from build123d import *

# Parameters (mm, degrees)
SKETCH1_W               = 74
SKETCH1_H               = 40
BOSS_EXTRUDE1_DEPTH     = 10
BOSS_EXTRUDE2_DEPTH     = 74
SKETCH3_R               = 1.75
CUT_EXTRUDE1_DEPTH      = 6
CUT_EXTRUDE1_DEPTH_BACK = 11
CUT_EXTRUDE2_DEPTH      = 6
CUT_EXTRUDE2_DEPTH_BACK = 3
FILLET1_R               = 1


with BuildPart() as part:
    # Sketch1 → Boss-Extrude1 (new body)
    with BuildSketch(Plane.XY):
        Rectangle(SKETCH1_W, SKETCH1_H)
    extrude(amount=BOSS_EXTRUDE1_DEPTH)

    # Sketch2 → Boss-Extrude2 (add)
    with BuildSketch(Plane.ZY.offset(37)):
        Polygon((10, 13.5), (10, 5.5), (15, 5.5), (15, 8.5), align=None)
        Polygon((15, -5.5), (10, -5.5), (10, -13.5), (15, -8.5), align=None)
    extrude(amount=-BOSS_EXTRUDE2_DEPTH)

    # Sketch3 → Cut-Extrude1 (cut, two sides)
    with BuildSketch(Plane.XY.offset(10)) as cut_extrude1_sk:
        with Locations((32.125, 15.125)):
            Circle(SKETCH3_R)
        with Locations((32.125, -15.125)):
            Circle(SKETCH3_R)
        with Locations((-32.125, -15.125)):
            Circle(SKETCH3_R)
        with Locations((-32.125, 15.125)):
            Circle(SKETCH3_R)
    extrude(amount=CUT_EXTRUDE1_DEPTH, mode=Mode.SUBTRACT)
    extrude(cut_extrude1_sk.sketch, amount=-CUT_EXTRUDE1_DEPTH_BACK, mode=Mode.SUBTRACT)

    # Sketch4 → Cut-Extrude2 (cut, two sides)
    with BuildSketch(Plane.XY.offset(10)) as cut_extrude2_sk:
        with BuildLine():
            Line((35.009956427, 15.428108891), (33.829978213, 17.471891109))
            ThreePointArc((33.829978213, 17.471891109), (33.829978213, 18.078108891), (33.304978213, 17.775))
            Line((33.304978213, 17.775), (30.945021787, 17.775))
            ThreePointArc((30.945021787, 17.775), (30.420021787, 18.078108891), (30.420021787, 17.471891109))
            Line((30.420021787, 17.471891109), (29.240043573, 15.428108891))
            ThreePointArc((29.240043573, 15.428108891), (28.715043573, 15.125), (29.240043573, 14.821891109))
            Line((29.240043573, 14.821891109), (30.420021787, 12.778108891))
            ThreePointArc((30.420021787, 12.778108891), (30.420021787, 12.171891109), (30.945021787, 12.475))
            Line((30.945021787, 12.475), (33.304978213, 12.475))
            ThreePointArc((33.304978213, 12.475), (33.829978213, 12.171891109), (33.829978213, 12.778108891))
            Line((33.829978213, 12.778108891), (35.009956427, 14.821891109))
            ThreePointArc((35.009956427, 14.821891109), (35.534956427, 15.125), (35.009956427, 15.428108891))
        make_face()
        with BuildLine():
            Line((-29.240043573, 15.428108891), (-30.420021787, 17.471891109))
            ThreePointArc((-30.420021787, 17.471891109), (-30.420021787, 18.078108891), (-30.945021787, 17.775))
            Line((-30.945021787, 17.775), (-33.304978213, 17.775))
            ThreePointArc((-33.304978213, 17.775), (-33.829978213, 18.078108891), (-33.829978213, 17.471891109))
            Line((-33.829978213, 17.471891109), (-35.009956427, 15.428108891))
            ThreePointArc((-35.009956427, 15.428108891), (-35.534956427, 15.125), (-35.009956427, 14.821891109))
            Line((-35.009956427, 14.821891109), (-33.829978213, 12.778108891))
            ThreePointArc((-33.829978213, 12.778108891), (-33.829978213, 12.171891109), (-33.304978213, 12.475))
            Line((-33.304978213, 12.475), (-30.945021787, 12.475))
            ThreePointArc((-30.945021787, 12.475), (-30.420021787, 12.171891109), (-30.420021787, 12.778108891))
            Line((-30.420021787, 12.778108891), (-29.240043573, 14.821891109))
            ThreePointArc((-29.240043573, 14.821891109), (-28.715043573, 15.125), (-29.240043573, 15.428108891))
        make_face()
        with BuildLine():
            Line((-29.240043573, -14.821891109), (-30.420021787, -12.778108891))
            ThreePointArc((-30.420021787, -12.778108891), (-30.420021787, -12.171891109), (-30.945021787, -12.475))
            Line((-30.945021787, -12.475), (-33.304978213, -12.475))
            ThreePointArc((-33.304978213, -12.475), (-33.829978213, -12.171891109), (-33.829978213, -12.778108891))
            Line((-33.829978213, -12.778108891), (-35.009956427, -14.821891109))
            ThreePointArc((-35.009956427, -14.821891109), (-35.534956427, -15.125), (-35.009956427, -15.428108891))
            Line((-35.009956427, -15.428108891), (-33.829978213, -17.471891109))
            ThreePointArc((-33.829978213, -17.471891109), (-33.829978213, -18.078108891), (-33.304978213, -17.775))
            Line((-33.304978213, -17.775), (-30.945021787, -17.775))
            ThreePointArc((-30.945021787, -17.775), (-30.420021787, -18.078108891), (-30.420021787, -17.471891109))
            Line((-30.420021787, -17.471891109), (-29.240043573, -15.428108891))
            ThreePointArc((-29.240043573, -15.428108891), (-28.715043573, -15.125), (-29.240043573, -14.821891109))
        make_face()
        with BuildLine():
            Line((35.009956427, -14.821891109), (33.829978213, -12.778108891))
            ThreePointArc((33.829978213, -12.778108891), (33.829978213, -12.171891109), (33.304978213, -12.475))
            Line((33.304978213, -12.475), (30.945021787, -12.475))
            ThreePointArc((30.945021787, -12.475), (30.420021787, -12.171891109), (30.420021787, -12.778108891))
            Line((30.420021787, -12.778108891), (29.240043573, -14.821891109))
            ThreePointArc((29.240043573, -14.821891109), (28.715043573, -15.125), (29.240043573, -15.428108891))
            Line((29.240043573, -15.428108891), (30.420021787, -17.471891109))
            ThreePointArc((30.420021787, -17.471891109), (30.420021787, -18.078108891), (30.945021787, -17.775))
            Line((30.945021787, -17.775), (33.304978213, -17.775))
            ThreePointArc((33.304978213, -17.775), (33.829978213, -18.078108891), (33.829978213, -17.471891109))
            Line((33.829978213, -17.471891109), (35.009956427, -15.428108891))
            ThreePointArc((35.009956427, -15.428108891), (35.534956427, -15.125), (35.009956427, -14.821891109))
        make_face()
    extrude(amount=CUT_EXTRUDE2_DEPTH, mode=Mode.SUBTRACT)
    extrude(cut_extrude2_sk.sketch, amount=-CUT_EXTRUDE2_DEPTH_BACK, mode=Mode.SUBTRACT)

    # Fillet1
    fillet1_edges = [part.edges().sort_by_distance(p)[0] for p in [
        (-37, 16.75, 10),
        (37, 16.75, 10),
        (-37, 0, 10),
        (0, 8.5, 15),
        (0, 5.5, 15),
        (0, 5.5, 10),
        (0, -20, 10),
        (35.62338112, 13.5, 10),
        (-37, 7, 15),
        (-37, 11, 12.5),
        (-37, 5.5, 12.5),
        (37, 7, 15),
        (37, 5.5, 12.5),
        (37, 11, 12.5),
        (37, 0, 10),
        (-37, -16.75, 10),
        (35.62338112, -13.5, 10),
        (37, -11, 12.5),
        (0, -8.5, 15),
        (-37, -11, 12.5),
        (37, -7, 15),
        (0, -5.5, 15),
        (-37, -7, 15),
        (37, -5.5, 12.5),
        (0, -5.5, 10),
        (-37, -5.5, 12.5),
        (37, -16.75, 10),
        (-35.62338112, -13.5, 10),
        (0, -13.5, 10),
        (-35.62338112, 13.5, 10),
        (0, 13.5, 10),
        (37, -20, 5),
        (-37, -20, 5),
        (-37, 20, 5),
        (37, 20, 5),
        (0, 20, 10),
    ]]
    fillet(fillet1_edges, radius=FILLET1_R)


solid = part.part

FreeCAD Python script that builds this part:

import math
import FreeCAD as App
import Part
import Sketcher

V = App.Vector
Q = App.Units.Quantity


def edges_at(feature, points):
    """Names of the edges that pass closest to the given points."""
    edges = feature.Shape.Edges
    near = lambda p: min(range(len(edges)), key=lambda i: edges[i].distToShape(Part.Vertex(*p))[0])
    return sorted({f"Edge{near(p) + 1}" for p in points})


def add_polygon(sketch, points):
    """Adds a closed chain of lines whose ends are joined by coincident constraints."""
    first, n = sketch.GeometryCount, len(points)
    for a, b in zip(points, points[1:] + points[:1]):
        sketch.addGeometry(Part.LineSegment(App.Vector(*a, 0), App.Vector(*b, 0)), False)
    for i in range(n):
        sketch.addConstraint(Sketcher.Constraint("Coincident", first + i, 2, first + (i + 1) % n, 1))

doc = App.newDocument("Part")
body = doc.addObject("PartDesign::Body", "Body")

# Sketch on XY plane
sketch1 = body.newObject("Sketcher::SketchObject", "Sketch")
sketch1.AttachmentSupport = (doc.getObject("XY_Plane"), [""])
sketch1.MapMode = "FlatFace"
add_polygon(sketch1, [(-37, 20), (-37, -20), (37, -20), (37, 20)])  # lines 0-3
sketch1.addConstraint([
    Sketcher.Constraint("Vertical", 0),
    Sketcher.Constraint("Horizontal", 1),
    Sketcher.Constraint("Vertical", 2),
    Sketcher.Constraint("Horizontal", 3),
    Sketcher.Constraint("Symmetric", 0, 2, 2, 2, -1, 1),
    Sketcher.Constraint("DistanceX", 1, 1, 1, 2, 74.0),
    Sketcher.Constraint("DistanceY", 0, 2, 0, 1, 40.0),
])
pad1 = body.newObject("PartDesign::Pad", "Pad")
pad1.Profile = sketch1
pad1.Length = 10

# Sketch on YZ plane
sketch2 = body.newObject("Sketcher::SketchObject", "Sketch001")
sketch2.AttachmentSupport = (doc.getObject("YZ_Plane"), [""])
sketch2.MapMode = "FlatFace"
sketch2.AttachmentOffset = App.Placement(V(0, 0, -37), App.Rotation())
add_polygon(sketch2, [(13.5, 10), (5.5, 10), (5.5, 15), (8.5, 15)])  # lines 0-3
add_polygon(sketch2, [(-5.5, 15), (-5.5, 10), (-13.5, 10), (-8.5, 15)])  # lines 4-7
sketch2.addConstraint([
    Sketcher.Constraint("Horizontal", 0),
    Sketcher.Constraint("Vertical", 1),
    Sketcher.Constraint("Horizontal", 2),
    Sketcher.Constraint("Vertical", 4),
    Sketcher.Constraint("Horizontal", 5),
    Sketcher.Constraint("Horizontal", 7),
    Sketcher.Constraint("Symmetric", 0, 2, 4, 2, -2),
    Sketcher.Constraint("Symmetric", 2, 2, 6, 2, -2),
    Sketcher.Constraint("Perpendicular", 3, 6),
    Sketcher.Constraint("Equal", 0, 5),
    Sketcher.Constraint("DistanceX", 0, 2, 0, 1, 8.0),
    Sketcher.Constraint("DistanceX", 2, 1, 2, 2, 3.0),
    Sketcher.Constraint("DistanceY", -1, 1, 0, 2, 10.0),
    Sketcher.Constraint("DistanceX", 4, 2, 0, 2, 11.0),
])
pad2 = body.newObject("PartDesign::Pad", "Pad001")
pad2.Profile = sketch2
pad2.Length = 74

# Sketch on XY plane
sketch3 = body.newObject("Sketcher::SketchObject", "Sketch002")
sketch3.AttachmentSupport = (doc.getObject("XY_Plane"), [""])
sketch3.MapMode = "FlatFace"
sketch3.AttachmentOffset = App.Placement(V(0, 0, 10), App.Rotation())
sketch3.addGeometry([
    Part.Circle(V(32.1, 15.1, 0), V(0, 0, 1), 1.8),
    Part.Circle(V(32.1, -15.1, 0), V(0, 0, 1), 1.8),
    Part.Circle(V(-32.1, -15.1, 0), V(0, 0, 1), 1.8),
    Part.Circle(V(-32.1, 15.1, 0), V(0, 0, 1), 1.8),
], False)
sketch3.addConstraint([
    Sketcher.Constraint("Equal", 0, 1),
    Sketcher.Constraint("Equal", 1, 2),
    Sketcher.Constraint("Equal", 2, 3),
    Sketcher.Constraint("Symmetric", 0, 3, 2, 3, -1, 1),
    Sketcher.Constraint("Symmetric", 1, 3, 3, 3, -1, 1),
    Sketcher.Constraint("Symmetric", 1, 3, 2, 3, -2),
    Sketcher.Constraint("Diameter", 0, 3.5),
    Sketcher.Constraint("DistanceY", 1, 3, 0, 3, 30.25),
    Sketcher.Constraint("DistanceX", 2, 3, 1, 3, 64.25),
])
pocket1 = body.newObject("PartDesign::Pocket", "Pocket")
pocket1.Profile = sketch3
pocket1.Type = "ThroughAll"
pocket1.Midplane = True

# Sketch on XY plane
sketch4 = body.newObject("Sketcher::SketchObject", "Sketch003")
sketch4.AttachmentSupport = (doc.getObject("XY_Plane"), [""])
sketch4.MapMode = "FlatFace"
sketch4.AttachmentOffset = App.Placement(V(0, 0, 10), App.Rotation())
sketch4.addGeometry([
    Part.LineSegment(V(35.01, 15.43, 0), V(33.83, 17.47, 0)),  # 0
    Part.ArcOfCircle(Part.Circle(V(33.65, 17.77, 0), V(0, 0, 1), 0.35), math.radians(-60), math.radians(180)),  # 1
    Part.LineSegment(V(33.3, 17.77, 0), V(30.95, 17.77, 0)),  # 2
    Part.ArcOfCircle(Part.Circle(V(30.6, 17.77, 0), V(0, 0, 1), 0.35), math.radians(0), math.radians(240)),  # 3
    Part.LineSegment(V(30.42, 17.47, 0), V(29.24, 15.43, 0)),  # 4
    Part.ArcOfCircle(Part.Circle(V(29.07, 15.12, 0), V(0, 0, 1), 0.35), math.radians(60), math.radians(300)),  # 5
    Part.LineSegment(V(29.24, 14.82, 0), V(30.42, 12.78, 0)),  # 6
    Part.ArcOfCircle(Part.Circle(V(30.6, 12.47, 0), V(0, 0, 1), 0.35), math.radians(120), math.radians(360)),  # 7
    Part.LineSegment(V(30.95, 12.47, 0), V(33.3, 12.47, 0)),  # 8
    Part.ArcOfCircle(Part.Circle(V(33.65, 12.47, 0), V(0, 0, 1), 0.35), math.radians(180), math.radians(420)),  # 9
    Part.LineSegment(V(33.83, 12.78, 0), V(35.01, 14.82, 0)),  # 10
    Part.ArcOfCircle(Part.Circle(V(35.18, 15.12, 0), V(0, 0, 1), 0.35), math.radians(-120), math.radians(120)),  # 11
    Part.LineSegment(V(-29.24, 15.43, 0), V(-30.42, 17.47, 0)),  # 12
    Part.ArcOfCircle(Part.Circle(V(-30.6, 17.77, 0), V(0, 0, 1), 0.35), math.radians(-60), math.radians(180)),  # 13
    Part.LineSegment(V(-30.95, 17.77, 0), V(-33.3, 17.77, 0)),  # 14
    Part.ArcOfCircle(Part.Circle(V(-33.65, 17.77, 0), V(0, 0, 1), 0.35), math.radians(0), math.radians(240)),  # 15
    Part.LineSegment(V(-33.83, 17.47, 0), V(-35.01, 15.43, 0)),  # 16
    Part.ArcOfCircle(Part.Circle(V(-35.18, 15.12, 0), V(0, 0, 1), 0.35), math.radians(60), math.radians(300)),  # 17
    Part.LineSegment(V(-35.01, 14.82, 0), V(-33.83, 12.78, 0)),  # 18
    Part.ArcOfCircle(Part.Circle(V(-33.65, 12.47, 0), V(0, 0, 1), 0.35), math.radians(120), math.radians(360)),  # 19
    Part.LineSegment(V(-33.3, 12.47, 0), V(-30.95, 12.47, 0)),  # 20
    Part.ArcOfCircle(Part.Circle(V(-30.6, 12.47, 0), V(0, 0, 1), 0.35), math.radians(180), math.radians(420)),  # 21
    Part.LineSegment(V(-30.42, 12.78, 0), V(-29.24, 14.82, 0)),  # 22
    Part.ArcOfCircle(Part.Circle(V(-29.07, 15.12, 0), V(0, 0, 1), 0.35), math.radians(-120), math.radians(120)),  # 23
    Part.LineSegment(V(-29.24, -14.82, 0), V(-30.42, -12.78, 0)),  # 24
    Part.ArcOfCircle(Part.Circle(V(-30.6, -12.47, 0), V(0, 0, 1), 0.35), math.radians(-60), math.radians(180)),  # 25
    Part.LineSegment(V(-30.95, -12.47, 0), V(-33.3, -12.47, 0)),  # 26
    Part.ArcOfCircle(Part.Circle(V(-33.65, -12.47, 0), V(0, 0, 1), 0.35), math.radians(0), math.radians(240)),  # 27
    Part.LineSegment(V(-33.83, -12.78, 0), V(-35.01, -14.82, 0)),  # 28
    Part.ArcOfCircle(Part.Circle(V(-35.18, -15.12, 0), V(0, 0, 1), 0.35), math.radians(60), math.radians(300)),  # 29
    Part.LineSegment(V(-35.01, -15.43, 0), V(-33.83, -17.47, 0)),  # 30
    Part.ArcOfCircle(Part.Circle(V(-33.65, -17.77, 0), V(0, 0, 1), 0.35), math.radians(120), math.radians(360)),  # 31
    Part.LineSegment(V(-33.3, -17.77, 0), V(-30.95, -17.77, 0)),  # 32
    Part.ArcOfCircle(Part.Circle(V(-30.6, -17.77, 0), V(0, 0, 1), 0.35), math.radians(180), math.radians(420)),  # 33
    Part.LineSegment(V(-30.42, -17.47, 0), V(-29.24, -15.43, 0)),  # 34
    Part.ArcOfCircle(Part.Circle(V(-29.07, -15.12, 0), V(0, 0, 1), 0.35), math.radians(-120), math.radians(120)),  # 35
    Part.LineSegment(V(35.01, -14.82, 0), V(33.83, -12.78, 0)),  # 36
    Part.ArcOfCircle(Part.Circle(V(33.65, -12.47, 0), V(0, 0, 1), 0.35), math.radians(-60), math.radians(180)),  # 37
    Part.LineSegment(V(33.3, -12.47, 0), V(30.95, -12.47, 0)),  # 38
    Part.ArcOfCircle(Part.Circle(V(30.6, -12.47, 0), V(0, 0, 1), 0.35), math.radians(0), math.radians(240)),  # 39
    Part.LineSegment(V(30.42, -12.78, 0), V(29.24, -14.82, 0)),  # 40
    Part.ArcOfCircle(Part.Circle(V(29.07, -15.12, 0), V(0, 0, 1), 0.35), math.radians(60), math.radians(300)),  # 41
    Part.LineSegment(V(29.24, -15.43, 0), V(30.42, -17.47, 0)),  # 42
    Part.ArcOfCircle(Part.Circle(V(30.6, -17.77, 0), V(0, 0, 1), 0.35), math.radians(120), math.radians(360)),  # 43
    Part.LineSegment(V(30.95, -17.77, 0), V(33.3, -17.77, 0)),  # 44
    Part.ArcOfCircle(Part.Circle(V(33.65, -17.77, 0), V(0, 0, 1), 0.35), math.radians(180), math.radians(420)),  # 45
    Part.LineSegment(V(33.83, -17.47, 0), V(35.01, -15.43, 0)),  # 46
    Part.ArcOfCircle(Part.Circle(V(35.18, -15.12, 0), V(0, 0, 1), 0.35), math.radians(-120), math.radians(120)),  # 47
], False)
sketch4.addConstraint([
    Sketcher.Constraint("Coincident", 0, 2, 1, 1),
    Sketcher.Constraint("Coincident", 1, 2, 2, 1),
    Sketcher.Constraint("Coincident", 2, 2, 3, 1),
    Sketcher.Constraint("Coincident", 3, 2, 4, 1),
    Sketcher.Constraint("Coincident", 4, 2, 5, 1),
    Sketcher.Constraint("Coincident", 5, 2, 6, 1),
    Sketcher.Constraint("Coincident", 6, 2, 7, 1),
    Sketcher.Constraint("Coincident", 7, 2, 8, 1),
    Sketcher.Constraint("Coincident", 8, 2, 9, 1),
    Sketcher.Constraint("Coincident", 9, 2, 10, 1),
    Sketcher.Constraint("Coincident", 10, 2, 11, 1),
    Sketcher.Constraint("Coincident", 11, 2, 0, 1),
    Sketcher.Constraint("Coincident", 12, 2, 13, 1),
    Sketcher.Constraint("Coincident", 13, 2, 14, 1),
    Sketcher.Constraint("Coincident", 14, 2, 15, 1),
    Sketcher.Constraint("Coincident", 15, 2, 16, 1),
    Sketcher.Constraint("Coincident", 16, 2, 17, 1),
    Sketcher.Constraint("Coincident", 17, 2, 18, 1),
    Sketcher.Constraint("Coincident", 18, 2, 19, 1),
    Sketcher.Constraint("Coincident", 19, 2, 20, 1),
    Sketcher.Constraint("Coincident", 20, 2, 21, 1),
    Sketcher.Constraint("Coincident", 21, 2, 22, 1),
    Sketcher.Constraint("Coincident", 22, 2, 23, 1),
    Sketcher.Constraint("Coincident", 23, 2, 12, 1),
    Sketcher.Constraint("Coincident", 24, 2, 25, 1),
    Sketcher.Constraint("Coincident", 25, 2, 26, 1),
    Sketcher.Constraint("Coincident", 26, 2, 27, 1),
    Sketcher.Constraint("Coincident", 27, 2, 28, 1),
    Sketcher.Constraint("Coincident", 28, 2, 29, 1),
    Sketcher.Constraint("Coincident", 29, 2, 30, 1),
    Sketcher.Constraint("Coincident", 30, 2, 31, 1),
    Sketcher.Constraint("Coincident", 31, 2, 32, 1),
    Sketcher.Constraint("Coincident", 32, 2, 33, 1),
    Sketcher.Constraint("Coincident", 33, 2, 34, 1),
    Sketcher.Constraint("Coincident", 34, 2, 35, 1),
    Sketcher.Constraint("Coincident", 35, 2, 24, 1),
    Sketcher.Constraint("Coincident", 36, 2, 37, 1),
    Sketcher.Constraint("Coincident", 37, 2, 38, 1),
    Sketcher.Constraint("Coincident", 38, 2, 39, 1),
    Sketcher.Constraint("Coincident", 39, 2, 40, 1),
    Sketcher.Constraint("Coincident", 40, 2, 41, 1),
    Sketcher.Constraint("Coincident", 41, 2, 42, 1),
    Sketcher.Constraint("Coincident", 42, 2, 43, 1),
    Sketcher.Constraint("Coincident", 43, 2, 44, 1),
    Sketcher.Constraint("Coincident", 44, 2, 45, 1),
    Sketcher.Constraint("Coincident", 45, 2, 46, 1),
    Sketcher.Constraint("Coincident", 46, 2, 47, 1),
    Sketcher.Constraint("Coincident", 47, 2, 36, 1),
    Sketcher.Constraint("Horizontal", 2),
    Sketcher.Constraint("Horizontal", 8),
    Sketcher.Constraint("Horizontal", 14),
    Sketcher.Constraint("Horizontal", 20),
    Sketcher.Constraint("Horizontal", 26),
    Sketcher.Constraint("Horizontal", 32),
    Sketcher.Constraint("Horizontal", 38),
    Sketcher.Constraint("Horizontal", 44),
    Sketcher.Constraint("Equal", 1, 3),
    Sketcher.Constraint("Equal", 3, 5),
    Sketcher.Constraint("Equal", 5, 7),
    Sketcher.Constraint("Equal", 7, 9),
    Sketcher.Constraint("Equal", 9, 11),
    Sketcher.Constraint("Equal", 11, 13),
    Sketcher.Constraint("Equal", 13, 15),
    Sketcher.Constraint("Equal", 15, 17),
    Sketcher.Constraint("Equal", 17, 19),
    Sketcher.Constraint("Equal", 19, 21),
    Sketcher.Constraint("Equal", 21, 23),
    Sketcher.Constraint("Equal", 23, 25),
    Sketcher.Constraint("Equal", 25, 27),
    Sketcher.Constraint("Equal", 27, 29),
    Sketcher.Constraint("Equal", 29, 31),
    Sketcher.Constraint("Equal", 31, 33),
    Sketcher.Constraint("Equal", 33, 35),
    Sketcher.Constraint("Equal", 35, 37),
    Sketcher.Constraint("Equal", 37, 39),
    Sketcher.Constraint("Equal", 39, 41),
    Sketcher.Constraint("Equal", 41, 43),
    Sketcher.Constraint("Equal", 43, 45),
    Sketcher.Constraint("Equal", 45, 47),
    Sketcher.Constraint("Symmetric", 7, 3, 25, 3, -1, 1),
    Sketcher.Constraint("Symmetric", 9, 3, 27, 3, -1, 1),
    Sketcher.Constraint("Symmetric", 11, 3, 29, 3, -1, 1),
    Sketcher.Constraint("Symmetric", 1, 3, 31, 3, -1, 1),
    Sketcher.Constraint("Symmetric", 3, 3, 33, 3, -1, 1),
    Sketcher.Constraint("Symmetric", 5, 3, 35, 3, -1, 1),
    Sketcher.Constraint("Symmetric", 19, 3, 37, 3, -1, 1),
    Sketcher.Constraint("Symmetric", 21, 3, 39, 3, -1, 1),
    Sketcher.Constraint("Symmetric", 23, 3, 41, 3, -1, 1),
    Sketcher.Constraint("Symmetric", 13, 3, 43, 3, -1, 1),
    Sketcher.Constraint("Symmetric", 15, 3, 45, 3, -1, 1),
    Sketcher.Constraint("Symmetric", 17, 3, 47, 3, -1, 1),
    Sketcher.Constraint("Symmetric", 3, 3, 13, 3, -2),
    Sketcher.Constraint("Symmetric", 1, 3, 15, 3, -2),
    Sketcher.Constraint("Symmetric", 11, 3, 17, 3, -2),
    Sketcher.Constraint("Symmetric", 9, 3, 19, 3, -2),
    Sketcher.Constraint("Symmetric", 7, 3, 21, 3, -2),
    Sketcher.Constraint("Symmetric", 5, 3, 23, 3, -2),
    Sketcher.Constraint("Parallel", 0, 6),
    Sketcher.Constraint("Parallel", 4, 10),
    Sketcher.Constraint("Parallel", 6, 12),
    Sketcher.Constraint("Parallel", 10, 16),
    Sketcher.Constraint("Parallel", 12, 18),
    Sketcher.Constraint("Parallel", 16, 22),
    Sketcher.Constraint("Parallel", 18, 24),
    Sketcher.Constraint("Parallel", 22, 28),
    Sketcher.Constraint("Parallel", 24, 30),
    Sketcher.Constraint("Parallel", 28, 34),
    Sketcher.Constraint("Parallel", 30, 36),
    Sketcher.Constraint("Parallel", 34, 40),
    Sketcher.Constraint("Parallel", 36, 42),
    Sketcher.Constraint("Parallel", 40, 46),
    Sketcher.Constraint("Horizontal", 1, 3, 3, 3),
    Sketcher.Constraint("Horizontal", 7, 3, 9, 3),
    Sketcher.Constraint("Horizontal", 5, 3, 11, 3),
    Sketcher.Constraint("Horizontal", 15, 3, 1, 2),
    Sketcher.Constraint("Horizontal", 0, 2, 3, 2),
    Sketcher.Constraint("Horizontal", 21, 3, 7, 2),
    Sketcher.Constraint("Horizontal", 6, 2, 9, 2),
    Sketcher.Constraint("Horizontal", 5, 2, 10, 2),
    Sketcher.Constraint("Horizontal", 4, 2, 11, 2),
    Sketcher.Constraint("Horizontal", 3, 2, 12, 2),
    Sketcher.Constraint("Horizontal", 2, 2, 13, 2),
    Sketcher.Constraint("Horizontal", 12, 2, 15, 2),
    Sketcher.Constraint("Horizontal", 11, 2, 16, 2),
    Sketcher.Constraint("Horizontal", 10, 2, 17, 2),
    Sketcher.Constraint("Horizontal", 8, 2, 19, 2),
    Sketcher.Constraint("Horizontal", 18, 2, 21, 2),
    Sketcher.Constraint("Horizontal", 39, 3, 25, 2),
    Sketcher.Constraint("Horizontal", 24, 2, 27, 2),
    Sketcher.Constraint("Horizontal", 45, 3, 31, 2),
    Sketcher.Constraint("Horizontal", 30, 2, 33, 2),
    Sketcher.Constraint("Horizontal", 27, 2, 36, 2),
    Sketcher.Constraint("Horizontal", 26, 2, 37, 2),
    Sketcher.Constraint("Horizontal", 36, 2, 39, 2),
    Sketcher.Constraint("Horizontal", 34, 2, 41, 2),
    Sketcher.Constraint("Horizontal", 32, 2, 43, 2),
    Sketcher.Constraint("Horizontal", 42, 2, 45, 2),
    Sketcher.Constraint("Vertical", 3, 3, 7, 3),
    Sketcher.Constraint("Vertical", 4, 2, 5, 2),
    Sketcher.Constraint("Vertical", 3, 2, 6, 2),
    Sketcher.Constraint("Vertical", 21, 2, 24, 2),
    Sketcher.Constraint("Vertical", 28, 2, 29, 2),
    Sketcher.Constraint("Angle", 0, Q("120 deg")),
    Sketcher.Constraint("Radius", 1, 0.35),
    Sketcher.Constraint("DistanceY", -1, 1, 1, 3, 17.775),
    Sketcher.Constraint("DistanceY", -1, 1, 5, 3, 15.125),
    Sketcher.Constraint("DistanceX", 2, 2, 2, 1, 2.359956),
    Sketcher.Constraint("DistanceX", -1, 1, 1, 3, 33.654978),
    Sketcher.Constraint("DistanceX", -1, 1, 0, 2, 33.829978),
    Sketcher.Constraint("DistanceY", -1, 1, 4, 2, 15.428109),
])
pocket2 = body.newObject("PartDesign::Pocket", "Pocket001")
pocket2.Profile = sketch4
pocket2.Type = "TwoLengths"
pocket2.Length = 6
pocket2.Length2 = 3
pocket2.Reversed = True
doc.recompute()

fillet = body.newObject("PartDesign::Fillet", "Fillet")
fillet.Base = (pocket2, edges_at(pocket2, [
    (-37, 16.75, 10),
    (37, 16.75, 10),
    (-37, 0, 10),
    (0, 8.5, 15),
    (0, 5.5, 15),
    (0, 5.5, 10),
    (0, -20, 10),
    (35.623, 13.5, 10),
    (-37, 7, 15),
    (-37, 11, 12.5),
    (-37, 5.5, 12.5),
    (37, 7, 15),
    (37, 5.5, 12.5),
    (37, 11, 12.5),
    (37, 0, 10),
    (-37, -16.75, 10),
    (35.623, -13.5, 10),
    (37, -11, 12.5),
    (0, -8.5, 15),
    (-37, -11, 12.5),
    (37, -7, 15),
    (0, -5.5, 15),
    (-37, -7, 15),
    (37, -5.5, 12.5),
    (0, -5.5, 10),
    (-37, -5.5, 12.5),
    (37, -16.75, 10),
    (-35.623, -13.5, 10),
    (0, -13.5, 10),
    (-35.623, 13.5, 10),
    (0, 13.5, 10),
    (37, -20, 5),
    (-37, -20, 5),
    (-37, 20, 5),
    (37, 20, 5),
    (0, 20, 10),
]))
fillet.Radius = 1

doc.recompute()
